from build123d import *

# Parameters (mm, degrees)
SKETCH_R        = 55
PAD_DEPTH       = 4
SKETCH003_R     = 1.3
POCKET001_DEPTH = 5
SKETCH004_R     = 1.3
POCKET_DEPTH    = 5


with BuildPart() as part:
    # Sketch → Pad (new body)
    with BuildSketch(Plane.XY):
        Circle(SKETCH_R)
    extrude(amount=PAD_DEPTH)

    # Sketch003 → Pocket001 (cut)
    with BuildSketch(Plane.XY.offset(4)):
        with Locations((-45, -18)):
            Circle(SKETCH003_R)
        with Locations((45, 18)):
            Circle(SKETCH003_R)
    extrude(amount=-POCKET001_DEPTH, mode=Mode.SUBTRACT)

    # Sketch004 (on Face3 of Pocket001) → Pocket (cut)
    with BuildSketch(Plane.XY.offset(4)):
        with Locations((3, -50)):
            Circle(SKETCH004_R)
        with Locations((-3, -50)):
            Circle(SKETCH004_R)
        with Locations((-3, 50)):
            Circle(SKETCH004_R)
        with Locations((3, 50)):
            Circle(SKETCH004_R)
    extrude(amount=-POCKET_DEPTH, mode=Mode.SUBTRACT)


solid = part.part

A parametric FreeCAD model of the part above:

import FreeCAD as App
import Part
import Sketcher

doc = App.newDocument("Part")
body = doc.addObject("PartDesign::Body", "Body")

# Sketch on XY plane
sketch1 = body.newObject("Sketcher::SketchObject", "Sketch")
sketch1.AttachmentSupport = (doc.getObject("XY_Plane"), [""])
sketch1.MapMode = "FlatFace"
sketch1.addGeometry(Part.Circle(App.Vector(0, 0, 0), App.Vector(0, 0, 1), 55), False)
sketch1.addConstraint([
    Sketcher.Constraint("Coincident", 0, 3, -1, 1),
    Sketcher.Constraint("Diameter", 0, 110.0),
])
pad1 = body.newObject("PartDesign::Pad", "Pad")
pad1.Profile = sketch1
pad1.Length = 4

# Sketch on XY plane
sketch2 = body.newObject("Sketcher::SketchObject", "Sketch001")
sketch2.AttachmentSupport = (doc.getObject("XY_Plane"), [""])
sketch2.MapMode = "FlatFace"
sketch2.AttachmentOffset = App.Placement(App.Vector(0, 0, 4), App.Rotation())
sketch2.addGeometry([
    Part.Circle(App.Vector(-45, -18, 0), App.Vector(0, 0, 1), 1.3),
    Part.Circle(App.Vector(45, 18, 0), App.Vector(0, 0, 1), 1.3),
], False)
sketch2.addConstraint([
    Sketcher.Constraint("Equal", 0, 1),
    Sketcher.Constraint("Symmetric", 0, 3, 1, 3, -1, 1),
    Sketcher.Constraint("Diameter", 0, 2.6),
    Sketcher.Constraint("DistanceX", 0, 3, -1, 1, 45.0),
    Sketcher.Constraint("DistanceY", 0, 3, -1, 1, 18.0),
])
pocket1 = body.newObject("PartDesign::Pocket", "Pocket")
pocket1.Profile = sketch2
pocket1.Length = 5

# Sketch on XY plane
sketch3 = body.newObject("Sketcher::SketchObject", "Sketch002")
sketch3.AttachmentSupport = (doc.getObject("XY_Plane"), [""])
sketch3.MapMode = "FlatFace"
sketch3.AttachmentOffset = App.Placement(App.Vector(0, 0, 4), App.Rotation())
sketch3.addGeometry([
    Part.Circle(App.Vector(3, -50, 0), App.Vector(0, 0, 1), 1.3),
    Part.Circle(App.Vector(-3, -50, 0), App.Vector(0, 0, 1), 1.3),
    Part.Circle(App.Vector(-3, 50, 0), App.Vector(0, 0, 1), 1.3),
    Part.Circle(App.Vector(3, 50, 0), App.Vector(0, 0, 1), 1.3),
], False)
sketch3.addConstraint([
    Sketcher.Constraint("Equal", 0, 1),
    Sketcher.Constraint("Equal", 1, 2),
    Sketcher.Constraint("Equal", 2, 3),
    Sketcher.Constraint("Symmetric", 0, 3, 2, 3, -1, 1),
    Sketcher.Constraint("Symmetric", 1, 3, 3, 3, -1, 1),
    Sketcher.Constraint("Symmetric", 0, 3, 1, 3, -2),
    Sketcher.Constraint("Diameter", 0, 2.6),
    Sketcher.Constraint("DistanceX", -1, 1, 0, 3, 3.0),
    Sketcher.Constraint("DistanceY", 0, 3, -1, 1, 50.0),
])
pocket2 = body.newObject("PartDesign::Pocket", "Pocket001")
pocket2.Profile = sketch3
pocket2.Length = 5

doc.recompute()
